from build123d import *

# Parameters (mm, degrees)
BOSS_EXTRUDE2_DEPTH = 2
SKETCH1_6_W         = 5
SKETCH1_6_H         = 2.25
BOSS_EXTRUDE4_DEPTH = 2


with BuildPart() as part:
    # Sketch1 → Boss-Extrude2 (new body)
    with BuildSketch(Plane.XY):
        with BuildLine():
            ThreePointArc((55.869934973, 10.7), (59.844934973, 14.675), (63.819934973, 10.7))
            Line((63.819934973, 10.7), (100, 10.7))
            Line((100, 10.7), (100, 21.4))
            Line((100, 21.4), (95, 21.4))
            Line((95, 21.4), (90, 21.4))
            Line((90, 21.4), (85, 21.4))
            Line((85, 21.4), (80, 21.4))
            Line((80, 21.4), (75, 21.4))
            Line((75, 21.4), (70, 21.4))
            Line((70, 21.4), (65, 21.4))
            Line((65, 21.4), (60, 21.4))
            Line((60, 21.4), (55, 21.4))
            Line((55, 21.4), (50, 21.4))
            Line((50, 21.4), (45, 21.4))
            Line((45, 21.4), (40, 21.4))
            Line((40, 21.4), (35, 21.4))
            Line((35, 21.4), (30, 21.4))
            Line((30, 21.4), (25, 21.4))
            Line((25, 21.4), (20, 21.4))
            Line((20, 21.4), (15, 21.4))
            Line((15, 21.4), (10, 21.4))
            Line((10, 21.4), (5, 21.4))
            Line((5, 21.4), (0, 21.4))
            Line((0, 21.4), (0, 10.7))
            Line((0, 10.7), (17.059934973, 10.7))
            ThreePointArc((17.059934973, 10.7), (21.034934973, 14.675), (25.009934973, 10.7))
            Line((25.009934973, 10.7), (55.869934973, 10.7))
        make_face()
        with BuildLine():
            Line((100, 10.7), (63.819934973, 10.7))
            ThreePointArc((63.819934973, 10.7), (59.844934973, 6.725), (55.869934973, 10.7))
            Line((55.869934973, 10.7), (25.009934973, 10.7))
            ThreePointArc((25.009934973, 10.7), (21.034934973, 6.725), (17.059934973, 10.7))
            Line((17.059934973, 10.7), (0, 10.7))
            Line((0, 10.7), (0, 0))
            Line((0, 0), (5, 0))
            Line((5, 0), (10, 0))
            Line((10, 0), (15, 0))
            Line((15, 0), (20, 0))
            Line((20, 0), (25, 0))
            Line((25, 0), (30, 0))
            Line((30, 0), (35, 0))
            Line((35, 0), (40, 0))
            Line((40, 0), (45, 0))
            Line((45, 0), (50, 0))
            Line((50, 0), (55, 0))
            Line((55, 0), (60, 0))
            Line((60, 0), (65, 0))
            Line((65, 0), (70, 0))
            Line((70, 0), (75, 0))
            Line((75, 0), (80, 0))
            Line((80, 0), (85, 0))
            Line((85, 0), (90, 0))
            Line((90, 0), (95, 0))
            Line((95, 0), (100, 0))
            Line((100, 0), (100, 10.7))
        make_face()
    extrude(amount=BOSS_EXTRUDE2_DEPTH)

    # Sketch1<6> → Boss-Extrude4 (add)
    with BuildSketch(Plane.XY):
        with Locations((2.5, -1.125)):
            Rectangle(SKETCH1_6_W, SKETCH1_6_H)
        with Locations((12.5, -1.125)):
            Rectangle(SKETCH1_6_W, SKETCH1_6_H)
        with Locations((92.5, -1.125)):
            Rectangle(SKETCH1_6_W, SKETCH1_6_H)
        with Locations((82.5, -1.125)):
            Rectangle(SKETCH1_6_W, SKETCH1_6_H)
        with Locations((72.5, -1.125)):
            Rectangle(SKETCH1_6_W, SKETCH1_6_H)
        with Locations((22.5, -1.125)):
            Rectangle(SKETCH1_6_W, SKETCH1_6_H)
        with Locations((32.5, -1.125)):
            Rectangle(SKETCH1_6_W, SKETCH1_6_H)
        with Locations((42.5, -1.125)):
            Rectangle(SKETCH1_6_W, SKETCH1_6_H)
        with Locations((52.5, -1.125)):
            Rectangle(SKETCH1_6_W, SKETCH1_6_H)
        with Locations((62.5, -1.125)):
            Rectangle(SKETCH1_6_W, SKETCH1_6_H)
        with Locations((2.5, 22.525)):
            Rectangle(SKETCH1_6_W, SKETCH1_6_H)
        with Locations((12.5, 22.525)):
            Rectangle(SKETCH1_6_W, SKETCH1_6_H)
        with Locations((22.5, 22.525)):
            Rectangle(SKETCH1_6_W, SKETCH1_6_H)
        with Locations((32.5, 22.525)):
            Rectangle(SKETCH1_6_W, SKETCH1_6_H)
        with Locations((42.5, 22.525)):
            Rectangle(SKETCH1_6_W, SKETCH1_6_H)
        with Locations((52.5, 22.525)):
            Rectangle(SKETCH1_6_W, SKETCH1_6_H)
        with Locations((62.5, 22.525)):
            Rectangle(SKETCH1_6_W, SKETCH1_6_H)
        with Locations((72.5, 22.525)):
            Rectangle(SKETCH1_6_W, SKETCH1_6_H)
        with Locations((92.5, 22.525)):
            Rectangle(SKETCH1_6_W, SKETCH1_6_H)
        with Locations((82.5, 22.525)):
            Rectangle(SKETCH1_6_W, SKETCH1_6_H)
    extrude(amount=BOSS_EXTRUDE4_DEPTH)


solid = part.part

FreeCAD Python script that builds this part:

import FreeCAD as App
import Part
import Sketcher
Q = App.Units.Quantity


def add_polygon(sketch, points):
    """Adds a closed chain of lines whose ends are joined by coincident constraints."""
    first, n = sketch.GeometryCount, len(points)
    for a, b in zip(points, points[1:] + points[:1]):
        sketch.addGeometry(Part.LineSegment(App.Vector(*a, 0), App.Vector(*b, 0)), False)
    for i in range(n):
        sketch.addConstraint(Sketcher.Constraint("Coincident", first + i, 2, first + (i + 1) % n, 1))

doc = App.newDocument("Part")
params = doc.addObject("Spreadsheet::Sheet", "Params")
for row, (alias, value) in enumerate([
    ("sketch1_diameter", "7.95 mm"),
    ("sketch1_width", "100 mm"),
    ("sketch1_height", "21.4 mm"),
    ("pad1_length", "2 mm"),
    ("sketch2_width", "5 mm"),
    ("sketch2_height", "2.25 mm"),
    ("pad2_length", "2 mm"),
], start=1):
    params.set(f"A{row}", alias)
    params.set(f"B{row}", "=" + value)
    params.setAlias(f"B{row}", alias)

body = doc.addObject("PartDesign::Body", "Body")

# Sketch on XY plane
sketch1 = doc.addObject("Sketcher::SketchObject", "Sketch")
body.addObject(sketch1)
sketch1.AttachmentSupport = (doc.XY_Plane, [""])
sketch1.MapMode = "FlatFace"
add_polygon(sketch1, [(100, 21.4), (0, 21.4), (0, 0), (100, 0)])  # lines 0-3
sketch1.addGeometry(Part.Circle(App.Vector(59.844935, 10.7, 0), App.Vector(0, 0, 1), 3.975), False)  # 4
sketch1.addGeometry(Part.Circle(App.Vector(21.034935, 10.7, 0), App.Vector(0, 0, 1), 3.975), False)  # 5
sketch1.addConstraint([
    Sketcher.Constraint("Horizontal", 0),
    Sketcher.Constraint("Vertical", 1),
    Sketcher.Constraint("Horizontal", 2),
    Sketcher.Constraint("Vertical", 3),
    Sketcher.Constraint("Coincident", 1, 2, -1, 1),
    Sketcher.Constraint("Equal", 4, 5),
    Sketcher.Constraint("Horizontal", 4, 3, 5, 3),
    Sketcher.Constraint("Diameter", 4, Q("7.95 mm")),
    Sketcher.Constraint("DistanceX", 0, 2, 0, 1, Q("100 mm")),
    Sketcher.Constraint("DistanceY", 1, 2, 1, 1, Q("21.4 mm")),
    Sketcher.Constraint("DistanceY", -1, 1, 4, 3, Q("10.7 mm")),
    Sketcher.Constraint("DistanceX", 5, 3, 4, 3, Q("38.81 mm")),
    Sketcher.Constraint("DistanceX", -1, 1, 4, 3, Q("59.844935 mm")),
])
sketch1.setExpression("Constraints[11]", "Params.sketch1_diameter")
sketch1.setExpression("Constraints[12]", "Params.sketch1_width")
sketch1.setExpression("Constraints[13]", "Params.sketch1_height")
pad1 = doc.addObject("PartDesign::Pad", "Pad")
body.addObject(pad1)
pad1.Profile = sketch1
pad1.setExpression("Length", "Params.pad1_length")

# Sketch on XY plane
sketch2 = doc.addObject("Sketcher::SketchObject", "Sketch001")
body.addObject(sketch2)
sketch2.AttachmentSupport = (doc.XY_Plane, [""])
sketch2.MapMode = "FlatFace"
add_polygon(sketch2, [(0, 0), (0, -2.25), (5, -2.25), (5, 0)])  # lines 0-3
add_polygon(sketch2, [(10, 0), (10, -2.25), (15, -2.25), (15, 0)])  # lines 4-7
add_polygon(sketch2, [(90, 0), (90, -2.25), (95, -2.25), (95, 0)])  # lines 8-11
add_polygon(sketch2, [(80, 0), (80, -2.25), (85, -2.25), (85, 0)])  # lines 12-15
add_polygon(sketch2, [(70, 0), (70, -2.25), (75, -2.25), (75, 0)])  # lines 16-19
add_polygon(sketch2, [(20, 0), (20, -2.25), (25, -2.25), (25, 0)])  # lines 20-23
add_polygon(sketch2, [(30, 0), (30, -2.25), (35, -2.25), (35, 0)])  # lines 24-27
add_polygon(sketch2, [(40, 0), (40, -2.25), (45, -2.25), (45, 0)])  # lines 28-31
add_polygon(sketch2, [(50, 0), (50, -2.25), (55, -2.25), (55, 0)])  # lines 32-35
add_polygon(sketch2, [(60, 0), (60, -2.25), (65, -2.25), (65, 0)])  # lines 36-39
add_polygon(sketch2, [(0, 23.65), (0, 21.4), (5, 21.4), (5, 23.65)])  # lines 40-43
add_polygon(sketch2, [(10, 23.65), (10, 21.4), (15, 21.4), (15, 23.65)])  # lines 44-47
add_polygon(sketch2, [(20, 23.65), (20, 21.4), (25, 21.4), (25, 23.65)])  # lines 48-51
add_polygon(sketch2, [(30, 23.65), (30, 21.4), (35, 21.4), (35, 23.65)])  # lines 52-55
add_polygon(sketch2, [(40, 23.65), (40, 21.4), (45, 21.4), (45, 23.65)])  # lines 56-59
add_polygon(sketch2, [(50, 23.65), (50, 21.4), (55, 21.4), (55, 23.65)])  # lines 60-63
add_polygon(sketch2, [(60, 23.65), (60, 21.4), (65, 21.4), (65, 23.65)])  # lines 64-67
add_polygon(sketch2, [(70, 23.65), (70, 21.4), (75, 21.4), (75, 23.65)])  # lines 68-71
add_polygon(sketch2, [(90, 23.65), (90, 21.4), (95, 21.4), (95, 23.65)])  # lines 72-75
add_polygon(sketch2, [(80, 23.65), (80, 21.4), (85, 21.4), (85, 23.65)])  # lines 76-79
sketch2.addConstraint([
    Sketcher.Constraint("Vertical", 0),
    Sketcher.Constraint("Horizontal", 1),
    Sketcher.Constraint("Vertical", 2),
    Sketcher.Constraint("Horizontal", 3),
    Sketcher.Constraint("Vertical", 4),
    Sketcher.Constraint("Horizontal", 5),
    Sketcher.Constraint("Vertical", 6),
    Sketcher.Constraint("Horizontal", 7),
    Sketcher.Constraint("Vertical", 8),
    Sketcher.Constraint("Horizontal", 9),
    Sketcher.Constraint("Vertical", 10),
    Sketcher.Constraint("Horizontal", 11),
    Sketcher.Constraint("Vertical", 12),
    Sketcher.Constraint("Horizontal", 13),
    Sketcher.Constraint("Vertical", 14),
    Sketcher.Constraint("Horizontal", 15),
    Sketcher.Constraint("Vertical", 16),
    Sketcher.Constraint("Horizontal", 17),
    Sketcher.Constraint("Vertical", 18),
    Sketcher.Constraint("Horizontal", 19),
    Sketcher.Constraint("Vertical", 20),
    Sketcher.Constraint("Horizontal", 21),
    Sketcher.Constraint("Vertical", 22),
    Sketcher.Constraint("Horizontal", 23),
    Sketcher.Constraint("Vertical", 24),
    Sketcher.Constraint("Horizontal", 25),
    Sketcher.Constraint("Vertical", 26),
    Sketcher.Constraint("Horizontal", 27),
    Sketcher.Constraint("Vertical", 28),
    Sketcher.Constraint("Horizontal", 29),
    Sketcher.Constraint("Vertical", 30),
    Sketcher.Constraint("Horizontal", 31),
    Sketcher.Constraint("Vertical", 32),
    Sketcher.Constraint("Horizontal", 33),
    Sketcher.Constraint("Vertical", 34),
    Sketcher.Constraint("Horizontal", 35),
    Sketcher.Constraint("Vertical", 36),
    Sketcher.Constraint("Horizontal", 37),
    Sketcher.Constraint("Vertical", 38),
    Sketcher.Constraint("Horizontal", 39),
    Sketcher.Constraint("Vertical", 40),
    Sketcher.Constraint("Horizontal", 41),
    Sketcher.Constraint("Vertical", 42),
    Sketcher.Constraint("Horizontal", 43),
    Sketcher.Constraint("Vertical", 44),
    Sketcher.Constraint("Horizontal", 45),
    Sketcher.Constraint("Vertical", 46),
    Sketcher.Constraint("Horizontal", 47),
    Sketcher.Constraint("Vertical", 48),
    Sketcher.Constraint("Horizontal", 49),
    Sketcher.Constraint("Vertical", 50),
    Sketcher.Constraint("Horizontal", 51),
    Sketcher.Constraint("Vertical", 52),
    Sketcher.Constraint("Horizontal", 53),
    Sketcher.Constraint("Vertical", 54),
    Sketcher.Constraint("Horizontal", 55),
    Sketcher.Constraint("Vertical", 56),
    Sketcher.Constraint("Horizontal", 57),
    Sketcher.Constraint("Vertical", 58),
    Sketcher.Constraint("Horizontal", 59),
    Sketcher.Constraint("Vertical", 60),
    Sketcher.Constraint("Horizontal", 61),
    Sketcher.Constraint("Vertical", 62),
    Sketcher.Constraint("Horizontal", 63),
    Sketcher.Constraint("Vertical", 64),
    Sketcher.Constraint("Horizontal", 65),
    Sketcher.Constraint("Vertical", 66),
    Sketcher.Constraint("Horizontal", 67),
    Sketcher.Constraint("Vertical", 68),
    Sketcher.Constraint("Horizontal", 69),
    Sketcher.Constraint("Vertical", 70),
    Sketcher.Constraint("Horizontal", 71),
    Sketcher.Constraint("Vertical", 72),
    Sketcher.Constraint("Horizontal", 73),
    Sketcher.Constraint("Vertical", 74),
    Sketcher.Constraint("Horizontal", 75),
    Sketcher.Constraint("Vertical", 76),
    Sketcher.Constraint("Horizontal", 77),
    Sketcher.Constraint("Vertical", 78),
    Sketcher.Constraint("Horizontal", 79),
    Sketcher.Constraint("Coincident", 3, 2, -1, 1),
    Sketcher.Constraint("PointOnObject", 6, 2, -1),
    Sketcher.Constraint("PointOnObject", 10, 2, -1),
    Sketcher.Constraint("PointOnObject", 14, 2, -1),
    Sketcher.Constraint("PointOnObject", 18, 2, -1),
    Sketcher.Constraint("PointOnObject", 22, 2, -1),
    Sketcher.Constraint("PointOnObject", 26, 2, -1),
    Sketcher.Constraint("PointOnObject", 30, 2, -1),
    Sketcher.Constraint("PointOnObject", 34, 2, -1),
    Sketcher.Constraint("PointOnObject", 38, 2, -1),
    Sketcher.Constraint("PointOnObject", 40, 2, -2),
    Sketcher.Constraint("Horizontal", 1, 2, 4, 2),
    Sketcher.Constraint("Horizontal", 5, 2, 8, 2),
    Sketcher.Constraint("Horizontal", 9, 2, 12, 2),
    Sketcher.Constraint("Horizontal", 13, 2, 16, 2),
    Sketcher.Constraint("Horizontal", 17, 2, 20, 2),
    Sketcher.Constraint("Horizontal", 21, 2, 24, 2),
    Sketcher.Constraint("Horizontal", 25, 2, 28, 2),
    Sketcher.Constraint("Horizontal", 29, 2, 32, 2),
    Sketcher.Constraint("Horizontal", 33, 2, 36, 2),
    Sketcher.Constraint("Horizontal", 41, 2, 44, 2),
    Sketcher.Constraint("Horizontal", 43, 2, 46, 2),
    Sketcher.Constraint("Horizontal", 45, 2, 48, 2),
    Sketcher.Constraint("Horizontal", 47, 2, 50, 2),
    Sketcher.Constraint("Horizontal", 49, 2, 52, 2),
    Sketcher.Constraint("Horizontal", 51, 2, 54, 2),
    Sketcher.Constraint("Horizontal", 53, 2, 56, 2),
    Sketcher.Constraint("Horizontal", 55, 2, 58, 2),
    Sketcher.Constraint("Horizontal", 57, 2, 60, 2),
    Sketcher.Constraint("Horizontal", 59, 2, 62, 2),
    Sketcher.Constraint("Horizontal", 61, 2, 64, 2),
    Sketcher.Constraint("Horizontal", 63, 2, 66, 2),
    Sketcher.Constraint("Horizontal", 65, 2, 68, 2),
    Sketcher.Constraint("Horizontal", 67, 2, 70, 2),
    Sketcher.Constraint("Horizontal", 69, 2, 72, 2),
    Sketcher.Constraint("Horizontal", 71, 2, 74, 2),
    Sketcher.Constraint("Horizontal", 73, 2, 76, 2),
    Sketcher.Constraint("Horizontal", 75, 2, 78, 2),
    Sketcher.Constraint("Vertical", 2, 2, 41, 2),
    Sketcher.Constraint("Vertical", 7, 2, 44, 2),
    Sketcher.Constraint("Vertical", 6, 2, 45, 2),
    Sketcher.Constraint("Vertical", 23, 2, 48, 2),
    Sketcher.Constraint("Vertical", 22, 2, 49, 2),
    Sketcher.Constraint("Vertical", 27, 2, 52, 2),
    Sketcher.Constraint("Vertical", 26, 2, 53, 2),
    Sketcher.Constraint("Vertical", 31, 2, 56, 2),
    Sketcher.Constraint("Vertical", 30, 2, 57, 2),
    Sketcher.Constraint("Vertical", 35, 2, 60, 2),
    Sketcher.Constraint("Vertical", 34, 2, 61, 2),
    Sketcher.Constraint("Vertical", 39, 2, 64, 2),
    Sketcher.Constraint("Vertical", 38, 2, 65, 2),
    Sketcher.Constraint("Vertical", 19, 2, 68, 2),
    Sketcher.Constraint("Vertical", 18, 2, 69, 2),
    Sketcher.Constraint("Vertical", 11, 2, 72, 2),
    Sketcher.Constraint("Vertical", 10, 2, 73, 2),
    Sketcher.Constraint("Vertical", 15, 2, 76, 2),
    Sketcher.Constraint("Vertical", 14, 2, 77, 2),
    Sketcher.Constraint("Equal", 3, 5),
    Sketcher.Constraint("Equal", 7, 9),
    Sketcher.Constraint("Equal", 11, 13),
    Sketcher.Constraint("Equal", 15, 17),
    Sketcher.Constraint("Equal", 19, 21),
    Sketcher.Constraint("Equal", 23, 25),
    Sketcher.Constraint("Equal", 27, 29),
    Sketcher.Constraint("Equal", 31, 33),
    Sketcher.Constraint("Equal", 35, 37),
    Sketcher.Constraint("Equal", 38, 40),
    Sketcher.Constraint("DistanceX", 1, 1, 1, 2, Q("5 mm")),
    Sketcher.Constraint("DistanceX", -1, 1, 4, 2, Q("10 mm")),
    Sketcher.Constraint("DistanceX", -1, 1, 8, 2, Q("90 mm")),
    Sketcher.Constraint("DistanceX", -1, 1, 12, 2, Q("80 mm")),
    Sketcher.Constraint("DistanceX", -1, 1, 16, 2, Q("70 mm")),
    Sketcher.Constraint("DistanceX", -1, 1, 20, 2, Q("20 mm")),
    Sketcher.Constraint("DistanceX", -1, 1, 24, 2, Q("30 mm")),
    Sketcher.Constraint("DistanceX", -1, 1, 28, 2, Q("40 mm")),
    Sketcher.Constraint("DistanceX", -1, 1, 32, 2, Q("50 mm")),
    Sketcher.Constraint("DistanceX", -1, 1, 36, 2, Q("60 mm")),
    Sketcher.Constraint("DistanceY", 0, 2, 0, 1, Q("2.25 mm")),
    Sketcher.Constraint("DistanceY", -1, 1, 40, 2, Q("21.4 mm")),
])
sketch2.setExpression("Constraints[227]", "Params.sketch2_width")
sketch2.setExpression("Constraints[237]", "Params.sketch2_height")
pad2 = doc.addObject("PartDesign::Pad", "Pad001")
body.addObject(pad2)
pad2.Profile = sketch2
pad2.setExpression("Length", "Params.pad2_length")

doc.recompute()
